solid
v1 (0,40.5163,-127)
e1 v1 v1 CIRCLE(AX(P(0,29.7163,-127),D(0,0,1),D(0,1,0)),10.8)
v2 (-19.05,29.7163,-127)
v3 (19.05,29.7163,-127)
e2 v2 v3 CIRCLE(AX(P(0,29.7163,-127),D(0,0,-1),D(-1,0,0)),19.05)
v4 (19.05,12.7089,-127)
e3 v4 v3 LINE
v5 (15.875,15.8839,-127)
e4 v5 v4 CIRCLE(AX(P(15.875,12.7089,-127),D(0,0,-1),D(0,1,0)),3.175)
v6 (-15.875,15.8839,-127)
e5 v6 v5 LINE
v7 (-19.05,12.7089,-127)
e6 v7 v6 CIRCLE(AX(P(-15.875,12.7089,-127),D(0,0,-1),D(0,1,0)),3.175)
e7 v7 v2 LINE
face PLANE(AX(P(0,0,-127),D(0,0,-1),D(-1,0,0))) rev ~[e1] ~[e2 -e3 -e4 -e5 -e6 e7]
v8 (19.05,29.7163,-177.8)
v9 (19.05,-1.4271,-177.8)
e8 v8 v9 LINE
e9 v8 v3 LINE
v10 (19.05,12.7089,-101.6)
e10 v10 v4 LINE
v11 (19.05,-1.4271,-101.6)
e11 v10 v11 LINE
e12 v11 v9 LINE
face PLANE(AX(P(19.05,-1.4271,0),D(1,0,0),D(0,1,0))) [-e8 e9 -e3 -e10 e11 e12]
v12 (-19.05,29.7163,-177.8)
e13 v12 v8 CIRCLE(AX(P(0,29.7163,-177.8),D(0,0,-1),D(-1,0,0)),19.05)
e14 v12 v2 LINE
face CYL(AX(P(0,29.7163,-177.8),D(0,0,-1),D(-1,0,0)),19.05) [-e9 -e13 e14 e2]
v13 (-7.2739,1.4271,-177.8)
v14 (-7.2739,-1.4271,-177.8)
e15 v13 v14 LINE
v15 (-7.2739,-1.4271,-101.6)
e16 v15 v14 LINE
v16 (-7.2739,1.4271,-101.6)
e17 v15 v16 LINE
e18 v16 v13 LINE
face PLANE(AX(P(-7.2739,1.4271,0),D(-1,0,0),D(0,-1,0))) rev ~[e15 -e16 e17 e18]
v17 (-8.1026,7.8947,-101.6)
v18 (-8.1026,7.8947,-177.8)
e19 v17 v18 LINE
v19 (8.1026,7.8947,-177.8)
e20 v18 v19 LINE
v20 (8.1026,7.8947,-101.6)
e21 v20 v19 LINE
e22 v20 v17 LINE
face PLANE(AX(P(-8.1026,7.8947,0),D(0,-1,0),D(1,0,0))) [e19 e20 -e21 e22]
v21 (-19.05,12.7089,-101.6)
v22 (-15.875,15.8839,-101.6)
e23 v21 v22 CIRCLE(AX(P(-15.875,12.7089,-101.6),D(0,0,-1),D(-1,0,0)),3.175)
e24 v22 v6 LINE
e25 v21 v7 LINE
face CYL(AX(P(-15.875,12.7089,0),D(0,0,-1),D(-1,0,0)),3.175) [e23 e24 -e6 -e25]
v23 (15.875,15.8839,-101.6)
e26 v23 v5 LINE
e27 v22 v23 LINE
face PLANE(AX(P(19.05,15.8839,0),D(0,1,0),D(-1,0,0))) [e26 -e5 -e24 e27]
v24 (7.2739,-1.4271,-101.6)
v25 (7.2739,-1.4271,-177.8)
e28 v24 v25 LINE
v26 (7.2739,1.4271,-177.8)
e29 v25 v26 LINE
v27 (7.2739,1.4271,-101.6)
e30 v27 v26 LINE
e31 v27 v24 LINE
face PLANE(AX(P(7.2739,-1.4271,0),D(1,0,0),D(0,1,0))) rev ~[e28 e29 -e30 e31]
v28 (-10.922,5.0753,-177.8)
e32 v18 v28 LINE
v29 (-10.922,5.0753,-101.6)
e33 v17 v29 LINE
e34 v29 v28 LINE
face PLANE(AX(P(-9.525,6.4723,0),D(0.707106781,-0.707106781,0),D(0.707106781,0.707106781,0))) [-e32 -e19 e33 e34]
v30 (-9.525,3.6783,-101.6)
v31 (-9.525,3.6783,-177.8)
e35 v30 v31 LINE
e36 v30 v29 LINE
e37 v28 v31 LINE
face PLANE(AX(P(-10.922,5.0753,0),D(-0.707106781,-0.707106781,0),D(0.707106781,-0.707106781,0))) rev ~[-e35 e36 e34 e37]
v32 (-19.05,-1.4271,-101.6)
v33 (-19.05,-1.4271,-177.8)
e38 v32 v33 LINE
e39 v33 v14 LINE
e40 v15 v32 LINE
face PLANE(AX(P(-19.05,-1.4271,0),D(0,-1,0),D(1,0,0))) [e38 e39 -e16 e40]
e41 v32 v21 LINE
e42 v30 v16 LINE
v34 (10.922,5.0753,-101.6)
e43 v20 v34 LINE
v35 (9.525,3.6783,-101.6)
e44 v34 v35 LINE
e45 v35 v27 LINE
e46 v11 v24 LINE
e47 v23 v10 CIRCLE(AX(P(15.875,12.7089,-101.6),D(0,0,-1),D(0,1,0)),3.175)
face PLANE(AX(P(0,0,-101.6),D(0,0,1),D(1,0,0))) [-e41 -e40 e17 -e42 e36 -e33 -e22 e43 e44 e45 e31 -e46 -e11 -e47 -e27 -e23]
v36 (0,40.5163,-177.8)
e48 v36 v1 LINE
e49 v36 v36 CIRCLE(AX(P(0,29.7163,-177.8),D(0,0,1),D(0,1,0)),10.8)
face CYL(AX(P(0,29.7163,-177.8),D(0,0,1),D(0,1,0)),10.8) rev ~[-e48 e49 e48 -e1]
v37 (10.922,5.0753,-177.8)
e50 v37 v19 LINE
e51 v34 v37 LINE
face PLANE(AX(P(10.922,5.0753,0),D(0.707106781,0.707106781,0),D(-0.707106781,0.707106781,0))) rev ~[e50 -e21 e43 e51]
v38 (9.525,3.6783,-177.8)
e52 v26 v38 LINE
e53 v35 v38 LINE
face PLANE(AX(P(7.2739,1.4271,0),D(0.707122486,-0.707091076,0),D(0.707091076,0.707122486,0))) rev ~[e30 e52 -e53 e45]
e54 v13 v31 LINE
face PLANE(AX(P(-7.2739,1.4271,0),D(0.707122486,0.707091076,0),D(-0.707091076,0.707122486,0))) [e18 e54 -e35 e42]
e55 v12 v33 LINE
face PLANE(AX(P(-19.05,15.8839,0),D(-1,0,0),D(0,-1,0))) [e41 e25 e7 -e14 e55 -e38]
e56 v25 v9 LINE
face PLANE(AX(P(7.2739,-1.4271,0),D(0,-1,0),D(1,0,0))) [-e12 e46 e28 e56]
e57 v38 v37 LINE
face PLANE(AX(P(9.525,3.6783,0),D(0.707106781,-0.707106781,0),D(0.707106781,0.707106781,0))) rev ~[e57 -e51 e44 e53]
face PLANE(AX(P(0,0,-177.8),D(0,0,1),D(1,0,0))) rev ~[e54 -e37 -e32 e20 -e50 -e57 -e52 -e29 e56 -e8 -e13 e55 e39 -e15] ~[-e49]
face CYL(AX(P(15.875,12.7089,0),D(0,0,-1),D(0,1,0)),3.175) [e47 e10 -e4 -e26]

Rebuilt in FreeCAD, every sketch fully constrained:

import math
import FreeCAD as App
import Part
import Sketcher

V = App.Vector
Q = App.Units.Quantity


def edges_at(feature, points):
    """Names of the edges that pass closest to the given points."""
    edges = feature.Shape.Edges
    near = lambda p: min(range(len(edges)), key=lambda i: edges[i].distToShape(Part.Vertex(*p))[0])
    return sorted({f"Edge{near(p) + 1}" for p in points})


def add_polygon(sketch, points):
    """Adds a closed chain of lines whose ends are joined by coincident constraints."""
    first, n = sketch.GeometryCount, len(points)
    for a, b in zip(points, points[1:] + points[:1]):
        sketch.addGeometry(Part.LineSegment(App.Vector(*a, 0), App.Vector(*b, 0)), False)
    for i in range(n):
        sketch.addConstraint(Sketcher.Constraint("Coincident", first + i, 2, first + (i + 1) % n, 1))

doc = App.newDocument("Part")
body = doc.addObject("PartDesign::Body", "Body")

# Sketch on XY plane
sketch1 = body.newObject("Sketcher::SketchObject", "Sketch")
sketch1.AttachmentSupport = (doc.getObject("XY_Plane"), [""])
sketch1.MapMode = "FlatFace"
add_polygon(sketch1, [(-19.1, -1.4), (-7.3, -1.4), (-7.3, 1.4), (-9.5, 3.7), (-10.9, 5.1), (-8.1, 7.9), (8.1, 7.9), (10.9, 5.1), (9.5, 3.7), (7.3, 1.4), (7.3, -1.4), (19.1, -1.4), (19.1, 15.9), (-19.1, 15.9)])  # lines 0-13
sketch1.addConstraint([
    Sketcher.Constraint("Horizontal", 0),
    Sketcher.Constraint("Vertical", 1),
    Sketcher.Constraint("Horizontal", 5),
    Sketcher.Constraint("Vertical", 9),
    Sketcher.Constraint("Horizontal", 10),
    Sketcher.Constraint("Vertical", 11),
    Sketcher.Constraint("Horizontal", 12),
    Sketcher.Constraint("Vertical", 13),
    Sketcher.Constraint("Symmetric", 0, 2, 8, 2, -1, 1),
    Sketcher.Constraint("Symmetric", 3, 2, 6, 2, -2),
    Sketcher.Constraint("Symmetric", 2, 2, 7, 2, -2),
    Sketcher.Constraint("Symmetric", 10, 2, 13, 2, -2),
    Sketcher.Constraint("Parallel", 2, 3),
    Sketcher.Constraint("Perpendicular", 3, 4),
    Sketcher.Constraint("Perpendicular", 4, 6),
    Sketcher.Constraint("Perpendicular", 6, 7),
    Sketcher.Constraint("Parallel", 7, 8),
    Sketcher.Constraint("DistanceX", 12, 2, 12, 1, Q("1.5 in")),
    Sketcher.Constraint("DistanceY", 2, 2, 4, 2, Q("0.166 in")),
    Sketcher.Constraint("DistanceY", 0, 2, 4, 2, Q("0.367 in")),
    Sketcher.Constraint("DistanceX", 5, 1, 5, 2, Q("0.638 in")),
    Sketcher.Constraint("DistanceX", 3, 2, -1, 1, Q("0.43 in")),
    Sketcher.Constraint("DistanceX", 0, 1, 0, 2, Q("11.776 mm")),
    Sketcher.Constraint("DistanceY", 11, 1, 11, 2, Q("17.311 mm")),
])
pad1 = body.newObject("PartDesign::Pad", "Pad")
pad1.Profile = sketch1
pad1.Length = Q("7 in")
pad1.Reversed = True

# Sketch on XY plane
sketch2 = body.newObject("Sketcher::SketchObject", "Sketch001")
sketch2.AttachmentSupport = (doc.getObject("XY_Plane"), [""])
sketch2.MapMode = "FlatFace"
sketch2.AttachmentOffset = App.Placement(V(0, 0, -7 * 25.4), App.Rotation())
sketch2.addGeometry([
    Part.LineSegment(V(-19, 16, 0), V(-19, 30, 0)),
    Part.ArcOfCircle(Part.Circle(V(0, 30, 0), V(0, 0, 1), 19), math.radians(0), math.radians(180)),
    Part.LineSegment(V(19, 30, 0), V(19, 16, 0)),
    Part.LineSegment(V(19, 16, 0), V(-19, 16, 0)),
], False)
sketch2.addConstraint([
    Sketcher.Constraint("Tangent", 0, 2, 1, 2),
    Sketcher.Constraint("Tangent", 1, 1, 2, 1),
    Sketcher.Constraint("Coincident", 2, 2, 3, 1),
    Sketcher.Constraint("Coincident", 3, 2, 0, 1),
    Sketcher.Constraint("Vertical", 0),
    Sketcher.Constraint("Vertical", 2),
    Sketcher.Constraint("Horizontal", 3),
    Sketcher.Constraint("PointOnObject", 1, 3, -2),
    Sketcher.Constraint("Radius", 1, Q("0.75 in")),
    Sketcher.Constraint("DistanceY", 0, 1, 0, 2, Q("13.8324 mm")),
    Sketcher.Constraint("DistanceY", -1, 1, 1, 3, Q("29.7163 mm")),
])
pad2 = body.newObject("PartDesign::Pad", "Pad001")
pad2.Profile = sketch2
pad2.Length = Q("2 in")

# Sketch on XY plane
sketch3 = body.newObject("Sketcher::SketchObject", "Sketch002")
sketch3.AttachmentSupport = (doc.getObject("XY_Plane"), [""])
sketch3.MapMode = "FlatFace"
sketch3.AttachmentOffset = App.Placement(V(0, 0, -7 * 25.4), App.Rotation())
sketch3.addGeometry(Part.Circle(V(0, 30, 0), V(0, 0, 1), 11), False)
sketch3.addConstraint([
    Sketcher.Constraint("PointOnObject", 0, 3, -2),
    Sketcher.Constraint("Diameter", 0, Q("0.8504 in")),
    Sketcher.Constraint("DistanceY", -1, 1, 0, 3, Q("29.7163 mm")),
])
doc.recompute()
hole = body.newObject("PartDesign::Hole", "Hole")
hole.Profile = sketch3
hole.ThreadType = "None"
hole.Diameter = Q("0.8503937 in")
hole.DepthType = "ThroughAll"
hole.Reversed = True
doc.recompute()

fillet = body.newObject("PartDesign::Fillet", "Fillet")
fillet.Base = (hole, edges_at(hole, [(-19.05, 15.884, -63.5), (19.05, 15.884, -63.5)]))
fillet.Radius = Q("0.125 in")

# Sketch on XY plane
sketch4 = body.newObject("Sketcher::SketchObject", "Sketch003")
sketch4.AttachmentSupport = (doc.getObject("XY_Plane"), [""])
sketch4.MapMode = "FlatFace"
add_polygon(sketch4, [(31, 47), (-84, 47), (-84, -7), (31, -7)])  # lines 0-3
sketch4.addConstraint([
    Sketcher.Constraint("Horizontal", 0),
    Sketcher.Constraint("Vertical", 1),
    Sketcher.Constraint("Horizontal", 2),
    Sketcher.Constraint("Vertical", 3),
    Sketcher.Constraint("DistanceY", 1, 2, 1, 1, Q("2.1169 in")),
    Sketcher.Constraint("DistanceX", 0, 2, 0, 1, Q("114.7002 mm")),
    Sketcher.Constraint("DistanceX", 0, 2, -1, 1, Q("3.3094 in")),
    Sketcher.Constraint("DistanceY", 1, 2, -1, 1, Q("0.2704 in")),
])
pocket1 = body.newObject("PartDesign::Pocket", "Pocket")
pocket1.Profile = sketch4
pocket1.Length = Q("4 in")

doc.recompute()
